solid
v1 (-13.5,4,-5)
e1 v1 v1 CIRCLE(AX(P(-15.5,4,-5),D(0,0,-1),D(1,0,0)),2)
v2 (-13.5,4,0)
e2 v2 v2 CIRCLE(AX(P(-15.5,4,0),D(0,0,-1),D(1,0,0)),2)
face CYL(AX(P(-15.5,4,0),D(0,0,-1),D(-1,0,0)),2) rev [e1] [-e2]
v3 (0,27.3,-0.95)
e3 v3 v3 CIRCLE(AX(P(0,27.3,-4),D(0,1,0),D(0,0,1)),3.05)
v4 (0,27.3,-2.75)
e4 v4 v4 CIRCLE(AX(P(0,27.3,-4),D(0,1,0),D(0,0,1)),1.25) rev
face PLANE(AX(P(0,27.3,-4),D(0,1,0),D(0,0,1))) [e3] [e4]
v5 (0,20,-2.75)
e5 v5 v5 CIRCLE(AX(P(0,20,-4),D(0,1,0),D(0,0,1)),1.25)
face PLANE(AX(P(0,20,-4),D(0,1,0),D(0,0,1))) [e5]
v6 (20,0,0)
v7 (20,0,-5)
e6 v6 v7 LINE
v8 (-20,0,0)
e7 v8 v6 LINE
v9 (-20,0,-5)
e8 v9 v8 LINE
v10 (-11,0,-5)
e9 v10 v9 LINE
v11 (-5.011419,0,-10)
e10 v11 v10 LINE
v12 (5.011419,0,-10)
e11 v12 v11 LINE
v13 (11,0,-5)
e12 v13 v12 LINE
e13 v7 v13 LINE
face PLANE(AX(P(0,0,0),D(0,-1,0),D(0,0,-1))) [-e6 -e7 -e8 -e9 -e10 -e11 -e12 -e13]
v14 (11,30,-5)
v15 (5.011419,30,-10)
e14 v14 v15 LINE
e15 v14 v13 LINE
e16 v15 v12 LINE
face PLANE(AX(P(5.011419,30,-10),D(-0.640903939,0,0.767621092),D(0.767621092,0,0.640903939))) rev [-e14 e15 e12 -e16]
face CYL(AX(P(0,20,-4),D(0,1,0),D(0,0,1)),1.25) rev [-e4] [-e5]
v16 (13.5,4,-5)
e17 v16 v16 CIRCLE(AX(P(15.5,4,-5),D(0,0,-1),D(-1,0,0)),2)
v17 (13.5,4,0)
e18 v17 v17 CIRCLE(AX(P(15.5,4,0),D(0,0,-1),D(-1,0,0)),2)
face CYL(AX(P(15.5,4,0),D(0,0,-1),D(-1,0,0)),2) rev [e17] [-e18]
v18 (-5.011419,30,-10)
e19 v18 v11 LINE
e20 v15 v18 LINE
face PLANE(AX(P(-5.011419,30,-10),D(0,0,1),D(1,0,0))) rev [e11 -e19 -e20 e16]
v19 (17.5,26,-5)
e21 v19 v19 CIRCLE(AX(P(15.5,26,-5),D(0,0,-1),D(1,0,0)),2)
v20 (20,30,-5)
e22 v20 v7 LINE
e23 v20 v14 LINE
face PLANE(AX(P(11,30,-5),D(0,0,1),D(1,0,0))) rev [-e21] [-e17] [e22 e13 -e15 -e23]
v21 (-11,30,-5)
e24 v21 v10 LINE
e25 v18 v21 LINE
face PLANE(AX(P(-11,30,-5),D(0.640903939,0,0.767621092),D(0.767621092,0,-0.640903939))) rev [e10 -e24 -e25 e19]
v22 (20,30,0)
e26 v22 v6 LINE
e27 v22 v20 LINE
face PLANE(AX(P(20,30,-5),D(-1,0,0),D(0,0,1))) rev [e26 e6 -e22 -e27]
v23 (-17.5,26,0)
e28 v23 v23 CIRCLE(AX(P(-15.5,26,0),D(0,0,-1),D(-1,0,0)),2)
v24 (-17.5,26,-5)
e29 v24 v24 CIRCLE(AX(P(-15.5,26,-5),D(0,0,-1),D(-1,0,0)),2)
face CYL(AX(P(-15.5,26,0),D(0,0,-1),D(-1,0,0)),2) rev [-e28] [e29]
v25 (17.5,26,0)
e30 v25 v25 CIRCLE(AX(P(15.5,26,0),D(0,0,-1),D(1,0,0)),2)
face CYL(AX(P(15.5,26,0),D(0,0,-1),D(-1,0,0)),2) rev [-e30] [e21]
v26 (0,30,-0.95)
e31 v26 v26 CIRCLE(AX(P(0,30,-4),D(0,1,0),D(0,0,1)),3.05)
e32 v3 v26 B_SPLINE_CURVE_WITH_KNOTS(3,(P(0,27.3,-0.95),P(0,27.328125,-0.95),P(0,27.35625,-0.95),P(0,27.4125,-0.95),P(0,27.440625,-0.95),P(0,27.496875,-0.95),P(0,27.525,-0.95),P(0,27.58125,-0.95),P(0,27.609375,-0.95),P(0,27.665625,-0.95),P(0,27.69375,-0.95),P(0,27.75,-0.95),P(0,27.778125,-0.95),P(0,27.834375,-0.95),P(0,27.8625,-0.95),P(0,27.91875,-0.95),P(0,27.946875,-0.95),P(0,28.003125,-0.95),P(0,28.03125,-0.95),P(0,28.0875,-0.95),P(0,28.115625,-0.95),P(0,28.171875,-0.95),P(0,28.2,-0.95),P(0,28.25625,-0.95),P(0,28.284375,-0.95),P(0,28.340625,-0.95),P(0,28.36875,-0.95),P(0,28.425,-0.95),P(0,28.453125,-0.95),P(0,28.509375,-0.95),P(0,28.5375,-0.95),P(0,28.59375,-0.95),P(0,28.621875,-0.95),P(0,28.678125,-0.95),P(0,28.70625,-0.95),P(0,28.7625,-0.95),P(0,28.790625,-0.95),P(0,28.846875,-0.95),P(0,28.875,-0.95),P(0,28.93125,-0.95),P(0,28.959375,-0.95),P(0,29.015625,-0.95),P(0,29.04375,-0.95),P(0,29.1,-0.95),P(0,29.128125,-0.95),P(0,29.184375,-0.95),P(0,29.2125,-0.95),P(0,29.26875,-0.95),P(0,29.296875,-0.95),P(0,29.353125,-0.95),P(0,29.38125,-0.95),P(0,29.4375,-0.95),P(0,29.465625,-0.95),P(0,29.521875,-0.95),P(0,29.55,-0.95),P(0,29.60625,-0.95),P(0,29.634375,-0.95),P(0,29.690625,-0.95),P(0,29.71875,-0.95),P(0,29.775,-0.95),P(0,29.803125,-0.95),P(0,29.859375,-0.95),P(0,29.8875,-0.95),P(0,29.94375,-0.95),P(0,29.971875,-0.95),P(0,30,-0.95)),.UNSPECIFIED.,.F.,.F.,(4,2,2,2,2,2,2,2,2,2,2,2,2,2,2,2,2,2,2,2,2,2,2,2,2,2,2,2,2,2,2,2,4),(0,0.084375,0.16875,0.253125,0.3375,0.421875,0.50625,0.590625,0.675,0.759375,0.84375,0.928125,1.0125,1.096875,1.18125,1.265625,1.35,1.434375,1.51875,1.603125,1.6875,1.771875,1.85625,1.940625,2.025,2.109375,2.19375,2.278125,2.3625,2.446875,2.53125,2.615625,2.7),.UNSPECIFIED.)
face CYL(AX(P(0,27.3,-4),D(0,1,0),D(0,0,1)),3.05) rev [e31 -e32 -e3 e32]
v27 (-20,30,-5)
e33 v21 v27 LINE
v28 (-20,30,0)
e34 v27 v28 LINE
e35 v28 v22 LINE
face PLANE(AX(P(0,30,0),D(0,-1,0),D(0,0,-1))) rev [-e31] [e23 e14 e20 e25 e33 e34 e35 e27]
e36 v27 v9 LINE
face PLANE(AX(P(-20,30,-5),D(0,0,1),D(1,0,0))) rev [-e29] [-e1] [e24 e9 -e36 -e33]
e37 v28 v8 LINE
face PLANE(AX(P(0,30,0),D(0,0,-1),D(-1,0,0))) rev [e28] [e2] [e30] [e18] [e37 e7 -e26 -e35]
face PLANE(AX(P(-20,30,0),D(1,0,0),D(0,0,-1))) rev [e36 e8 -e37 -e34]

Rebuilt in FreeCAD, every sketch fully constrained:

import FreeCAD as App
import Part
import Sketcher
from FreeCAD import Vector

doc = App.newDocument("Part")
params = doc.addObject("Spreadsheet::Sheet", "Params")
for row, (alias, value) in enumerate([
    ("sketch1_width", "40 mm"),
    ("sketch1_width2", "9 mm"),
    ("sketch1_height", "5 mm"),
    ("pad1_length", "30 mm"),
    ("sketch2_diameter", "2.5 mm"),
    ("pocket1_length", "10 mm"),
    ("sketch3_diameter", "4 mm"),
    ("sketch4_diameter", "6.1 mm"),
    ("pocket3_length", "2.7 mm"),
], start=1):
    params.set(f"A{row}", alias)
    params.set(f"B{row}", "=" + value)
    params.setAlias(f"B{row}", alias)

body = doc.addObject("PartDesign::Body", "Body")

sketch1 = body.newObject("Sketcher::SketchObject", "Sketch")
sketch1.AttachmentSupport = (doc.getObject("XZ_Plane"), [""])
sketch1.MapMode = "FlatFace"
sketch1.addGeometry(Part.LineSegment(Vector(-20, 0, 0), Vector(20, 0, 0)), False)
sketch1.addGeometry(Part.LineSegment(Vector(20, 0, 0), Vector(20, -5, 0)), False)
sketch1.addGeometry(Part.LineSegment(Vector(20, -5, 0), Vector(11, -5, 0)), False)
sketch1.addGeometry(Part.LineSegment(Vector(11, -5, 0), Vector(5.011419, -10, 0)), False)
sketch1.addGeometry(Part.LineSegment(Vector(5.011419, -10, 0), Vector(-5.011419, -10, 0)), False)
sketch1.addGeometry(Part.LineSegment(Vector(-5.011419, -10, 0), Vector(-11, -5, 0)), False)
sketch1.addGeometry(Part.LineSegment(Vector(-11, -5, 0), Vector(-20, -5, 0)), False)
sketch1.addGeometry(Part.LineSegment(Vector(-20, -5, 0), Vector(-20, 0, 0)), False)
sketch1.addConstraint(Sketcher.Constraint("Coincident", 0, 2, 1, 1))
sketch1.addConstraint(Sketcher.Constraint("Coincident", 1, 2, 2, 1))
sketch1.addConstraint(Sketcher.Constraint("Coincident", 2, 2, 3, 1))
sketch1.addConstraint(Sketcher.Constraint("Coincident", 3, 2, 4, 1))
sketch1.addConstraint(Sketcher.Constraint("Coincident", 4, 2, 5, 1))
sketch1.addConstraint(Sketcher.Constraint("Coincident", 5, 2, 6, 1))
sketch1.addConstraint(Sketcher.Constraint("Coincident", 6, 2, 7, 1))
sketch1.addConstraint(Sketcher.Constraint("Coincident", 7, 2, 0, 1))
sketch1.addConstraint(Sketcher.Constraint("Horizontal", 0))
sketch1.addConstraint(Sketcher.Constraint("Vertical", 1))
sketch1.addConstraint(Sketcher.Constraint("Horizontal", 2))
sketch1.addConstraint(Sketcher.Constraint("Horizontal", 4))
sketch1.addConstraint(Sketcher.Constraint("Horizontal", 6))
sketch1.addConstraint(Sketcher.Constraint("Vertical", 7))
sketch1.addConstraint(Sketcher.Constraint("Symmetric", 0, 2, 7, 2, -1, 1))
sketch1.addConstraint(Sketcher.Constraint("Symmetric", 2, 2, 5, 2, -2))
sketch1.addConstraint(Sketcher.Constraint("Equal", 3, 5))
sketch1.addConstraint(Sketcher.Constraint("DistanceX", 0, 1, 0, 2, 40.0))
sketch1.addConstraint(Sketcher.Constraint("DistanceX", 2, 2, 2, 1, 9.0))
sketch1.addConstraint(Sketcher.Constraint("DistanceY", 1, 2, 1, 1, 5.0))
sketch1.addConstraint(Sketcher.Constraint("DistanceY", 3, 2, -1, 1, 10.0))
sketch1.addConstraint(Sketcher.Constraint("Distance", 3, 7.801481))
sketch1.setExpression("Constraints[17]", "Params.sketch1_width")
sketch1.setExpression("Constraints[18]", "Params.sketch1_width2")
sketch1.setExpression("Constraints[19]", "Params.sketch1_height")
pad1 = body.newObject("PartDesign::Pad", "Pad")
pad1.Profile = sketch1
pad1.setExpression("Length", "Params.pad1_length")
pad1.Reversed = True

sketch2 = body.newObject("Sketcher::SketchObject", "Sketch001")
sketch2.AttachmentSupport = (doc.getObject("XZ_Plane"), [""])
sketch2.MapMode = "FlatFace"
sketch2.AttachmentOffset = App.Placement(Vector(0, 0, -30), App.Rotation())
sketch2.addGeometry(Part.Circle(Vector(0, -4, 0), Vector(0, 0, 1), 1.25), False)
sketch2.addConstraint(Sketcher.Constraint("PointOnObject", 0, 3, -2))
sketch2.addConstraint(Sketcher.Constraint("Diameter", 0, 2.5))
sketch2.addConstraint(Sketcher.Constraint("DistanceY", 0, 3, -1, 1, 4.0))
sketch2.setExpression("Constraints[1]", "Params.sketch2_diameter")
pocket1 = body.newObject("PartDesign::Pocket", "Pocket")
pocket1.Profile = sketch2
pocket1.setExpression("Length", "Params.pocket1_length")
pocket1.Reversed = True

sketch3 = body.newObject("Sketcher::SketchObject", "Sketch002")
sketch3.AttachmentSupport = (doc.getObject("XY_Plane"), [""])
sketch3.MapMode = "FlatFace"
sketch3.AttachmentOffset = App.Placement(Vector(0, 0, -5), App.Rotation())
sketch3.addGeometry(Part.Circle(Vector(15.5, 4, 0), Vector(0, 0, 1), 2), False)
sketch3.addGeometry(Part.Circle(Vector(15.5, 26, 0), Vector(0, 0, 1), 2), False)
sketch3.addGeometry(Part.Circle(Vector(-15.5, 4, 0), Vector(0, 0, 1), 2), False)
sketch3.addGeometry(Part.Circle(Vector(-15.5, 26, 0), Vector(0, 0, 1), 2), False)
sketch3.addConstraint(Sketcher.Constraint("Equal", 0, 1))
sketch3.addConstraint(Sketcher.Constraint("Equal", 1, 2))
sketch3.addConstraint(Sketcher.Constraint("Equal", 2, 3))
sketch3.addConstraint(Sketcher.Constraint("Symmetric", 0, 3, 2, 3, -2))
sketch3.addConstraint(Sketcher.Constraint("Symmetric", 1, 3, 3, 3, -2))
sketch3.addConstraint(Sketcher.Constraint("Vertical", 0, 3, 1, 3))
sketch3.addConstraint(Sketcher.Constraint("Diameter", 0, 4.0))
sketch3.addConstraint(Sketcher.Constraint("DistanceY", -1, 1, 0, 3, 4.0))
sketch3.addConstraint(Sketcher.Constraint("DistanceY", -1, 1, 1, 3, 26.0))
sketch3.addConstraint(Sketcher.Constraint("DistanceX", 2, 3, 0, 3, 31.0))
sketch3.setExpression("Constraints[6]", "Params.sketch3_diameter")
pocket2 = body.newObject("PartDesign::Pocket", "Pocket001")
pocket2.Profile = sketch3
pocket2.Type = "ThroughAll"
pocket2.Reversed = True

sketch4 = body.newObject("Sketcher::SketchObject", "Sketch003")
sketch4.AttachmentSupport = (doc.getObject("XZ_Plane"), [""])
sketch4.MapMode = "FlatFace"
sketch4.AttachmentOffset = App.Placement(Vector(0, 0, -30), App.Rotation())
sketch4.addGeometry(Part.Circle(Vector(0, -4, 0), Vector(0, 0, 1), 3.05), False)
sketch4.addConstraint(Sketcher.Constraint("PointOnObject", 0, 3, -2))
sketch4.addConstraint(Sketcher.Constraint("Diameter", 0, 6.1))
sketch4.addConstraint(Sketcher.Constraint("DistanceY", 0, 3, -1, 1, 4.0))
sketch4.setExpression("Constraints[1]", "Params.sketch4_diameter")
pocket3 = body.newObject("PartDesign::Pocket", "Pocket002")
pocket3.Profile = sketch4
pocket3.setExpression("Length", "Params.pocket3_length")
pocket3.Reversed = True

doc.recompute()
